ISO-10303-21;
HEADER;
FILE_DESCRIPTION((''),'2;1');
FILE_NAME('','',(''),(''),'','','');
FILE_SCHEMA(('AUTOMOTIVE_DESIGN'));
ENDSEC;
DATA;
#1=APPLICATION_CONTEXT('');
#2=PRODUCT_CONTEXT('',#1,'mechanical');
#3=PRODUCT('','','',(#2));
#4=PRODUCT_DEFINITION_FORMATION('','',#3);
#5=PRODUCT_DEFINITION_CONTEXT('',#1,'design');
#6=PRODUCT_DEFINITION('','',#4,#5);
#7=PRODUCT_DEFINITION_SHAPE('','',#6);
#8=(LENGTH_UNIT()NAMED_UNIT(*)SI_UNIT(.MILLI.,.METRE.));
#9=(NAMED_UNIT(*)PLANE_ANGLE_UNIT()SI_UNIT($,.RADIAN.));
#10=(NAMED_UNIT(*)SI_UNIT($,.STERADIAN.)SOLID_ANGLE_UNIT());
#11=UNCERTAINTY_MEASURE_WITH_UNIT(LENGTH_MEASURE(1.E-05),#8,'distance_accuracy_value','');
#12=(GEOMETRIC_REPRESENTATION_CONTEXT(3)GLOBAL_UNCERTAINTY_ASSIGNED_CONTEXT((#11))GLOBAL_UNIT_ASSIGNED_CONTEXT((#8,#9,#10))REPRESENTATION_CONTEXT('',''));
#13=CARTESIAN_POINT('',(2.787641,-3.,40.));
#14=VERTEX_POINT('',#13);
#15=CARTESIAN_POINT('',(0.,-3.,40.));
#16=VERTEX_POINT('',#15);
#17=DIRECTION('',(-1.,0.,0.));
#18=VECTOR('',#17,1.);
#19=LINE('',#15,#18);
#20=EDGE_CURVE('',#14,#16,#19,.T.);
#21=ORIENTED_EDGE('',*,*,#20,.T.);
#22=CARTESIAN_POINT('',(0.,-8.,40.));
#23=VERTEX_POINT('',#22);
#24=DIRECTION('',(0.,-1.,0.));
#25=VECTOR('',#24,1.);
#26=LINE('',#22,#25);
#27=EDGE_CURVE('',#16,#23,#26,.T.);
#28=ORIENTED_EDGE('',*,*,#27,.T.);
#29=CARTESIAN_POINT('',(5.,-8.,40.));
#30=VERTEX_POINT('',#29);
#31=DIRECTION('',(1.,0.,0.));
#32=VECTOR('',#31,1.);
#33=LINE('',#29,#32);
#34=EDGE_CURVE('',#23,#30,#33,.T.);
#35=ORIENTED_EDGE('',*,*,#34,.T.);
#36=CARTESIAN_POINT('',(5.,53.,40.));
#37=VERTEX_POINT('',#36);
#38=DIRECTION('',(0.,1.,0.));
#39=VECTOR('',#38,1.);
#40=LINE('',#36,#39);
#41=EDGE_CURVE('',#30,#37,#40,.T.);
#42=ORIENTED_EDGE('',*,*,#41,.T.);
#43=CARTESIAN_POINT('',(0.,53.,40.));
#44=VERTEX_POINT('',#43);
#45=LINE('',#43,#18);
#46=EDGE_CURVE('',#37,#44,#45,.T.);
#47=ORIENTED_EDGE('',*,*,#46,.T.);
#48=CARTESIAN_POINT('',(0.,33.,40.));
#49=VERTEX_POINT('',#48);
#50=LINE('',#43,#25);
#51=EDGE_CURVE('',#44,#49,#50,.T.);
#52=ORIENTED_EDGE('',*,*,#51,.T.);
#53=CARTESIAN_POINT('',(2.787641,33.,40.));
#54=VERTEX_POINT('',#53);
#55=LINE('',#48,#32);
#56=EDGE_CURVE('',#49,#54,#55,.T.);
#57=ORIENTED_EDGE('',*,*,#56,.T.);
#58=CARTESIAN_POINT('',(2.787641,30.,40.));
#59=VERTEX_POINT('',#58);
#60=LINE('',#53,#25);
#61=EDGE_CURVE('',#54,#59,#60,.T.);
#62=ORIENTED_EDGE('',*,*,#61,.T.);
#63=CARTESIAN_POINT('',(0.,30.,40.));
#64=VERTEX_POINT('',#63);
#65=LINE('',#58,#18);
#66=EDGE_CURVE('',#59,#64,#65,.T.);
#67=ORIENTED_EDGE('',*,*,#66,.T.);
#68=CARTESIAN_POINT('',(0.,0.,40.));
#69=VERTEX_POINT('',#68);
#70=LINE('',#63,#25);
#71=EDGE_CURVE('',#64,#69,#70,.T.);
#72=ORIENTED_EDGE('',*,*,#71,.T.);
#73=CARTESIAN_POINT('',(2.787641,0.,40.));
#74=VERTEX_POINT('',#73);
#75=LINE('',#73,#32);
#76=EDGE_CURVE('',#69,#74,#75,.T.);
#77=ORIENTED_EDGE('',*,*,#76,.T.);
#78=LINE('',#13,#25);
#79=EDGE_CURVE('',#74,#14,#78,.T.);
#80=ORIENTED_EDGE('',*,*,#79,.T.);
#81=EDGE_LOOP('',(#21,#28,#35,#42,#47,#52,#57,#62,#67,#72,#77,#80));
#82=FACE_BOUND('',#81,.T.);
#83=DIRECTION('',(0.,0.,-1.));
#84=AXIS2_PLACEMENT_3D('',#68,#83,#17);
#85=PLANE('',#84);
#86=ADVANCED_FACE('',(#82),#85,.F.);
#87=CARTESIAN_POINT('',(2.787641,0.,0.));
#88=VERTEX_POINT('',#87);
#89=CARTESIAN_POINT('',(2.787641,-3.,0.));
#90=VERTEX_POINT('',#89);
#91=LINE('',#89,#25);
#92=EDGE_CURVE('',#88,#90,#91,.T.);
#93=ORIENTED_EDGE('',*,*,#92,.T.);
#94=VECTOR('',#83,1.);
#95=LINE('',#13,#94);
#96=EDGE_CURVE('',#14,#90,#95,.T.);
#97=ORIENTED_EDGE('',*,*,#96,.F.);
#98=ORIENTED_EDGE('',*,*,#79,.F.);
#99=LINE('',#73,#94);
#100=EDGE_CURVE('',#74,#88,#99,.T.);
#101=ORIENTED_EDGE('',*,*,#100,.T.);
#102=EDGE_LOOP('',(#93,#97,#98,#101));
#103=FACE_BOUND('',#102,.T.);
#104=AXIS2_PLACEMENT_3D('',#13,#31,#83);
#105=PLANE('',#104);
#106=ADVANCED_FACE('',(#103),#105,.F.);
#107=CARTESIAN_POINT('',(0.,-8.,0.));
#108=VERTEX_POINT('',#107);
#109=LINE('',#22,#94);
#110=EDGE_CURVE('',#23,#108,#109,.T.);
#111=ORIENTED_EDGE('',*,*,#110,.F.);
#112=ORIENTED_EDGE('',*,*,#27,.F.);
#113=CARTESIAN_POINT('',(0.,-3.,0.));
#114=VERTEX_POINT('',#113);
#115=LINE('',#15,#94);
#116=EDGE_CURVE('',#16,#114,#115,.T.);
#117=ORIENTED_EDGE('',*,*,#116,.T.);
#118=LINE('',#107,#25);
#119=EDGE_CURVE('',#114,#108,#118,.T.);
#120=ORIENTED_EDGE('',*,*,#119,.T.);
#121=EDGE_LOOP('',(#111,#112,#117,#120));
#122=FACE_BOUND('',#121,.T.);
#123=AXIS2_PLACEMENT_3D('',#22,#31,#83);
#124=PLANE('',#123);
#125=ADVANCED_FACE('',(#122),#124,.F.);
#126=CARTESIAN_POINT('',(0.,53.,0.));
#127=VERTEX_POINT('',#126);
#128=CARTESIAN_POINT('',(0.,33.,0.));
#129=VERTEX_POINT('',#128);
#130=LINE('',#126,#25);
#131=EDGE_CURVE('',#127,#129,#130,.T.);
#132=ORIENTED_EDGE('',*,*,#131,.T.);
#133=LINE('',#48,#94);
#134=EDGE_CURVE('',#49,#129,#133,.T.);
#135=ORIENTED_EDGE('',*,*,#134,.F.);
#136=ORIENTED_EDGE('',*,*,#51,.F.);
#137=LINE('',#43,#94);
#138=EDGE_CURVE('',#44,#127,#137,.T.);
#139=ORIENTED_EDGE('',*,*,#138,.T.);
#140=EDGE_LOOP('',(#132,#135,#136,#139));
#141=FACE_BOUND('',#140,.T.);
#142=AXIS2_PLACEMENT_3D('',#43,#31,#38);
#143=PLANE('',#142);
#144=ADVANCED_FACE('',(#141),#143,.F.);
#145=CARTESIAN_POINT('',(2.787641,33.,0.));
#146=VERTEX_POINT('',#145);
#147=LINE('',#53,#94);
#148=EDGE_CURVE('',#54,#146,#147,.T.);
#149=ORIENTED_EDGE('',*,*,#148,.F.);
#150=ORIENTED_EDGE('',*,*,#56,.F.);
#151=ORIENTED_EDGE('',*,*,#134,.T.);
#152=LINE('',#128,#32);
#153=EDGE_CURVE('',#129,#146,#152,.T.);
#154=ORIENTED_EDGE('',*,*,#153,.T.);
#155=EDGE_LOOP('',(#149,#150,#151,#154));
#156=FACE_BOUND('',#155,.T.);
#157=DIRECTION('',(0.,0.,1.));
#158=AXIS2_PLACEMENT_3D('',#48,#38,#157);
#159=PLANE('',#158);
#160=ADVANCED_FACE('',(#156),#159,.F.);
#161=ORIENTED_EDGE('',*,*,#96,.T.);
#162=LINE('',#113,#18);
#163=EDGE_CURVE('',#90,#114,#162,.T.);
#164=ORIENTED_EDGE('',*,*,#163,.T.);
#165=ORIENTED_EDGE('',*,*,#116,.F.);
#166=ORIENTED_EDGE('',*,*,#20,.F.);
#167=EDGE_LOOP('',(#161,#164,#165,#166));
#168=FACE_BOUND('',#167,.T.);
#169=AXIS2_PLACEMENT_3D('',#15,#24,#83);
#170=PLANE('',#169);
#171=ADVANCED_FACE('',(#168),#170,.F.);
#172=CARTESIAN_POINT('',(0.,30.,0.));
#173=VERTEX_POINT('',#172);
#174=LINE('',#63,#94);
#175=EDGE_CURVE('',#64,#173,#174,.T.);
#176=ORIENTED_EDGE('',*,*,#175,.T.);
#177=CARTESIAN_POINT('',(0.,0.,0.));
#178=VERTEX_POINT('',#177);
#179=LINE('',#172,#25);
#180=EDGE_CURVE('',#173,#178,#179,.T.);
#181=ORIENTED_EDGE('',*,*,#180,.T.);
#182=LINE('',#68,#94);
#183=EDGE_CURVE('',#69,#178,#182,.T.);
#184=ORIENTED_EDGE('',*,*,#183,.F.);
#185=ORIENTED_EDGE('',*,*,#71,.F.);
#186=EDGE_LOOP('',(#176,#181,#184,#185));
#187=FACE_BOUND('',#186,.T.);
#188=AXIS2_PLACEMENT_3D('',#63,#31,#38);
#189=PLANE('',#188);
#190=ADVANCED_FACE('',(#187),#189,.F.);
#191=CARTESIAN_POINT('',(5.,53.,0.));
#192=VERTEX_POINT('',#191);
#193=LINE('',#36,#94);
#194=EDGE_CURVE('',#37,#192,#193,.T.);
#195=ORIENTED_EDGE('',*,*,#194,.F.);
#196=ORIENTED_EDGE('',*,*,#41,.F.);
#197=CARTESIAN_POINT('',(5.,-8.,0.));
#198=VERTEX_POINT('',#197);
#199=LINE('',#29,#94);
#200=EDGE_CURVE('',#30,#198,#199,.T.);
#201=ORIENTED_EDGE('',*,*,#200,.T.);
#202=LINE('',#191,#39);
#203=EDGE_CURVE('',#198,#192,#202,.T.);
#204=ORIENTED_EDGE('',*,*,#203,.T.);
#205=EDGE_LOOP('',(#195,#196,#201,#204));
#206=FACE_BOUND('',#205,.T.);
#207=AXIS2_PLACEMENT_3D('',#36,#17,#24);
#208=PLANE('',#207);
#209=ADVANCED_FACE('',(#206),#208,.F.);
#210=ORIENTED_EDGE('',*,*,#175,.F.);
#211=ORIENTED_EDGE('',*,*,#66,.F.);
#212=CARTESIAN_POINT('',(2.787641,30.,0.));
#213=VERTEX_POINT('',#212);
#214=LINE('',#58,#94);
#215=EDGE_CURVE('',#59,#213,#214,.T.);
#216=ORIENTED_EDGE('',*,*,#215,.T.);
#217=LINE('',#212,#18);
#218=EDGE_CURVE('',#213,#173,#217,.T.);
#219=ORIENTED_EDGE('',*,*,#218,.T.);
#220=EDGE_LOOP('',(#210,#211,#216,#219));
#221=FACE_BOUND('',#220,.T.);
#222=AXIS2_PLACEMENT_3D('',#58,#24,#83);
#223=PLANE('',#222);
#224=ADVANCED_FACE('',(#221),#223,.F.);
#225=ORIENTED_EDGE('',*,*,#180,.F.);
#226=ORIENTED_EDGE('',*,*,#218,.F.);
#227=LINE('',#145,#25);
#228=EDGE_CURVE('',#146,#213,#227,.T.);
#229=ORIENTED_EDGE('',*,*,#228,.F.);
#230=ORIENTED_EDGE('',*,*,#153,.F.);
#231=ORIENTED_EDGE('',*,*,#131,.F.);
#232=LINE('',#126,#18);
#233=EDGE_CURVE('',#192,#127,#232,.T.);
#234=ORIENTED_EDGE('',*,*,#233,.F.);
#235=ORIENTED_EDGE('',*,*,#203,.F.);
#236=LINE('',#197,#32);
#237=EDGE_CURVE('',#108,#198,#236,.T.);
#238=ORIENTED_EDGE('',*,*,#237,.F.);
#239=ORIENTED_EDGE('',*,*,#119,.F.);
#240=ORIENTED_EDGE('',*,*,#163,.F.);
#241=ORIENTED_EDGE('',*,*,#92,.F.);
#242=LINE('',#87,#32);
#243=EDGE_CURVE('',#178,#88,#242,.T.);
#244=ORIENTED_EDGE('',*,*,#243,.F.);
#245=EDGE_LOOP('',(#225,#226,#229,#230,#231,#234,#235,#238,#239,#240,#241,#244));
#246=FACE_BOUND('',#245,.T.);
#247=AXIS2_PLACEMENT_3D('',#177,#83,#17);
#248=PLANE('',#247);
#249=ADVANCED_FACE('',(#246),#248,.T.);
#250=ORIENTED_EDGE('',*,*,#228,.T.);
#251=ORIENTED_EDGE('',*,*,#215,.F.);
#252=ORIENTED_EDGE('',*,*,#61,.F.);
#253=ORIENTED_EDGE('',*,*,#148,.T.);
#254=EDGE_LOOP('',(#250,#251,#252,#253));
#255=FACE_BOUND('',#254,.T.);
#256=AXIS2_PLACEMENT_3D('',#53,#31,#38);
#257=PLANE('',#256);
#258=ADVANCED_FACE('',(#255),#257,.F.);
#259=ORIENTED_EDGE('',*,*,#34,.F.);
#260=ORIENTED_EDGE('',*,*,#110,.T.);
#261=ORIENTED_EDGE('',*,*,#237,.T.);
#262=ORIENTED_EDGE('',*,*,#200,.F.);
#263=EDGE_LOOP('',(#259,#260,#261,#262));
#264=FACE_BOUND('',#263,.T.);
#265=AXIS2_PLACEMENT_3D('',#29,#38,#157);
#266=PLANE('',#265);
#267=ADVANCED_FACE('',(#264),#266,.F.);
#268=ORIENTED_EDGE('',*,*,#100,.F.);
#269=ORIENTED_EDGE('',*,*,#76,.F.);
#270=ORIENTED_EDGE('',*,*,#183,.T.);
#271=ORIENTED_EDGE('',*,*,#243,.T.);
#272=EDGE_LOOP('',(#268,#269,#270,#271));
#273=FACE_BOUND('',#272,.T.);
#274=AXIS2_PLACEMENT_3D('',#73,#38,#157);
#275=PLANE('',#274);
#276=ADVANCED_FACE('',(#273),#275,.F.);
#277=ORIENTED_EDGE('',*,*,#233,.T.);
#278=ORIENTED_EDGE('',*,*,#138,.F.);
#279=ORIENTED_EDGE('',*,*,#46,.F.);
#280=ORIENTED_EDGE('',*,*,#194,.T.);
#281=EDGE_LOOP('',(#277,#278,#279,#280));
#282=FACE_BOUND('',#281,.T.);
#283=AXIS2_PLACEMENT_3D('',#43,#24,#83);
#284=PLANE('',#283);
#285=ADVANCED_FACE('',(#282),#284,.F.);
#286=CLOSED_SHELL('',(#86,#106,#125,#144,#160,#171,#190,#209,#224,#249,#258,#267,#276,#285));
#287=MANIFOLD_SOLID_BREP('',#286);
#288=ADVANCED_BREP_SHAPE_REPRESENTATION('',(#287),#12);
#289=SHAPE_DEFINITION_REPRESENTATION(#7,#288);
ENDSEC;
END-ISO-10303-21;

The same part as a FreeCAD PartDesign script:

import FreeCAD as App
import Part
import Sketcher
from FreeCAD import Vector

doc = App.newDocument("Part")
body = doc.addObject("PartDesign::Body", "Body")

sketch1 = doc.addObject("Sketcher::SketchObject", "Sketch")
body.addObject(sketch1)
sketch1.AttachmentSupport = (doc.XY_Plane, [""])
sketch1.MapMode = "FlatFace"
sketch1.addGeometry([
    Part.LineSegment(Vector(5, 53, 0), Vector(0, 53, 0)),
    Part.LineSegment(Vector(0, 53, 0), Vector(0, 33, 0)),
    Part.LineSegment(Vector(0, 33, 0), Vector(2.8, 33, 0)),
    Part.LineSegment(Vector(2.8, 33, 0), Vector(2.8, 30, 0)),
    Part.LineSegment(Vector(2.8, 30, 0), Vector(0, 30, 0)),
    Part.LineSegment(Vector(0, 30, 0), Vector(0, 0, 0)),
    Part.LineSegment(Vector(0, 0, 0), Vector(2.8, 0, 0)),
    Part.LineSegment(Vector(2.8, 0, 0), Vector(2.8, -3, 0)),
    Part.LineSegment(Vector(2.8, -3, 0), Vector(0, -3, 0)),
    Part.LineSegment(Vector(0, -3, 0), Vector(0, -8, 0)),
    Part.LineSegment(Vector(0, -8, 0), Vector(5, -8, 0)),
    Part.LineSegment(Vector(5, -8, 0), Vector(5, 53, 0)),
], False)
sketch1.addConstraint([
    Sketcher.Constraint("Coincident", 0, 2, 1, 1),
    Sketcher.Constraint("Coincident", 1, 2, 2, 1),
    Sketcher.Constraint("Coincident", 2, 2, 3, 1),
    Sketcher.Constraint("Coincident", 3, 2, 4, 1),
    Sketcher.Constraint("Coincident", 4, 2, 5, 1),
    Sketcher.Constraint("Coincident", 5, 2, 6, 1),
    Sketcher.Constraint("Coincident", 6, 2, 7, 1),
    Sketcher.Constraint("Coincident", 7, 2, 8, 1),
    Sketcher.Constraint("Coincident", 8, 2, 9, 1),
    Sketcher.Constraint("Coincident", 9, 2, 10, 1),
    Sketcher.Constraint("Coincident", 10, 2, 11, 1),
    Sketcher.Constraint("Coincident", 11, 2, 0, 1),
    Sketcher.Constraint("Horizontal", 0),
    Sketcher.Constraint("Vertical", 1),
    Sketcher.Constraint("Horizontal", 2),
    Sketcher.Constraint("Vertical", 3),
    Sketcher.Constraint("Horizontal", 4),
    Sketcher.Constraint("Vertical", 5),
    Sketcher.Constraint("Horizontal", 6),
    Sketcher.Constraint("Vertical", 7),
    Sketcher.Constraint("Horizontal", 8),
    Sketcher.Constraint("Vertical", 9),
    Sketcher.Constraint("Horizontal", 10),
    Sketcher.Constraint("Vertical", 11),
    Sketcher.Constraint("Coincident", 5, 2, -1, 1),
    Sketcher.Constraint("PointOnObject", 0, 2, -2),
    Sketcher.Constraint("PointOnObject", 8, 2, -2),
    Sketcher.Constraint("Vertical", 3, 2, 6, 2),
    Sketcher.Constraint("Equal", 3, 7),
    Sketcher.Constraint("Equal", 10, 9),
    Sketcher.Constraint("DistanceX", 0, 2, 0, 1, 5.0),
    Sketcher.Constraint("DistanceY", 1, 2, 1, 1, 20.0),
    Sketcher.Constraint("DistanceY", 3, 2, 3, 1, 3.0),
    Sketcher.Constraint("DistanceY", 5, 2, 5, 1, 30.0),
    Sketcher.Constraint("DistanceX", 2, 1, 2, 2, 2.787641),
])
pad1 = doc.addObject("PartDesign::Pad", "Pad")
body.addObject(pad1)
pad1.Profile = sketch1
pad1.Length = 40

doc.recompute()
